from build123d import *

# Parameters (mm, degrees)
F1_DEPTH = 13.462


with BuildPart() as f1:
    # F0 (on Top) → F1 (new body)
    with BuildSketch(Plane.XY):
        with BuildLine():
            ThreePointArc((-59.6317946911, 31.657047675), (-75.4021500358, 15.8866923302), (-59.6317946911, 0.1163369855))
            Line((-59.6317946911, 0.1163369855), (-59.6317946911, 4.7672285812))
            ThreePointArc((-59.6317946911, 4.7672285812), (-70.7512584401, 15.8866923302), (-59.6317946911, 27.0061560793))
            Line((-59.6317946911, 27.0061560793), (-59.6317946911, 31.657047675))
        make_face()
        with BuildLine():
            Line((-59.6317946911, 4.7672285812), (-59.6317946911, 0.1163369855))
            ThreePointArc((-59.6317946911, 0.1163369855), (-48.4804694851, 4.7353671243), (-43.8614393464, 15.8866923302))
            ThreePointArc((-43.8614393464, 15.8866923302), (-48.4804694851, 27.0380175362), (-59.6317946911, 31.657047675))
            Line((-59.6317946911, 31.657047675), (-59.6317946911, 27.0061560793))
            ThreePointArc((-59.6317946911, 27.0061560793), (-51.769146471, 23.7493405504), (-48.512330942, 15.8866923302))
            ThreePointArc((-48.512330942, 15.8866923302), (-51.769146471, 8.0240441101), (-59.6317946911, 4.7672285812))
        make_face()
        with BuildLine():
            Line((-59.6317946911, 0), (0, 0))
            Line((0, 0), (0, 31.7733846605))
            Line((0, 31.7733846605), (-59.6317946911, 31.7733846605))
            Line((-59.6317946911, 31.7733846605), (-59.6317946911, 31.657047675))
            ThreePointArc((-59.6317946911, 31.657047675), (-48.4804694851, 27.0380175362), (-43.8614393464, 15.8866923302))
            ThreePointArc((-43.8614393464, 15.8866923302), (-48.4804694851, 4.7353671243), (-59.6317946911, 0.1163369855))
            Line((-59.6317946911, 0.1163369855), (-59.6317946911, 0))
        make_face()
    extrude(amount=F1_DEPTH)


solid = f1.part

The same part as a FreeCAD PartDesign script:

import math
import FreeCAD as App
import Part
import Sketcher

V = App.Vector
Q = App.Units.Quantity

doc = App.newDocument("Part")
body = doc.addObject("PartDesign::Body", "Body")

# Sketch on XY plane
sketch1 = body.newObject("Sketcher::SketchObject", "Sketch")
sketch1.AttachmentSupport = (doc.getObject("XY_Plane"), [""])
sketch1.MapMode = "FlatFace"
sketch1.addGeometry([
    Part.ArcOfCircle(Part.Circle(V(-59.63, 15.89, 0), V(0, 0, 1), 15.77), math.radians(90), math.radians(270)),  # 0
    Part.LineSegment(V(-59.63, 0.12, 0), V(-59.63, 0, 0)),  # 1
    Part.LineSegment(V(-59.63, 0, 0), V(0, 0, 0)),  # 2
    Part.LineSegment(V(0, 0, 0), V(0, 31.77, 0)),  # 3
    Part.LineSegment(V(0, 31.77, 0), V(-59.63, 31.77, 0)),  # 4
    Part.LineSegment(V(-59.63, 31.77, 0), V(-59.63, 31.66, 0)),  # 5
    Part.ArcOfCircle(Part.Circle(V(-59.63, 15.89, 0), V(0, 0, 1), 11.12), math.radians(90), math.radians(270)),  # 6
    Part.ArcOfCircle(Part.Circle(V(-59.63, 15.89, 0), V(0, 0, 1), 11.12), math.radians(0), math.radians(90)),  # 7
    Part.ArcOfCircle(Part.Circle(V(-59.63, 15.89, 0), V(0, 0, 1), 11.12), math.radians(-90), math.radians(0)),  # 8
], False)
sketch1.addConstraint([
    Sketcher.Constraint("Coincident", 0, 2, 1, 1),
    Sketcher.Constraint("Coincident", 1, 2, 2, 1),
    Sketcher.Constraint("Coincident", 2, 2, 3, 1),
    Sketcher.Constraint("Coincident", 3, 2, 4, 1),
    Sketcher.Constraint("Coincident", 4, 2, 5, 1),
    Sketcher.Constraint("Coincident", 5, 2, 0, 1),
    Sketcher.Constraint("Tangent", 6, 1, 7, 2),
    Sketcher.Constraint("Tangent", 7, 1, 8, 2),
    Sketcher.Constraint("Tangent", 8, 1, 6, 2),
    Sketcher.Constraint("Vertical", 1),
    Sketcher.Constraint("Horizontal", 2),
    Sketcher.Constraint("Vertical", 3),
    Sketcher.Constraint("Horizontal", 4),
    Sketcher.Constraint("Vertical", 5),
    Sketcher.Constraint("Coincident", 2, 2, -1, 1),
    Sketcher.Constraint("Coincident", 6, 3, 0, 3),
    Sketcher.Constraint("Horizontal", 8, 3, 7, 1),
    Sketcher.Constraint("Vertical", 8, 3, 0, 2),
    Sketcher.Constraint("Vertical", 1, 2, 4, 2),
    Sketcher.Constraint("Vertical", 5, 2, 6, 1),
    Sketcher.Constraint("Vertical", 6, 1, 8, 1),
    Sketcher.Constraint("Equal", 1, 5),
    Sketcher.Constraint("Radius", 0, Q("15.770355 mm")),
    Sketcher.Constraint("Radius", 6, Q("11.119464 mm")),
    Sketcher.Constraint("DistanceX", 2, 1, 2, 2, Q("59.631795 mm")),
    Sketcher.Constraint("DistanceY", 1, 2, 1, 1, Q("0.116337 mm")),
])
pad1 = body.newObject("PartDesign::Pad", "Pad")
pad1.Profile = sketch1
pad1.Length = Q("0.53 in")

doc.recompute()
